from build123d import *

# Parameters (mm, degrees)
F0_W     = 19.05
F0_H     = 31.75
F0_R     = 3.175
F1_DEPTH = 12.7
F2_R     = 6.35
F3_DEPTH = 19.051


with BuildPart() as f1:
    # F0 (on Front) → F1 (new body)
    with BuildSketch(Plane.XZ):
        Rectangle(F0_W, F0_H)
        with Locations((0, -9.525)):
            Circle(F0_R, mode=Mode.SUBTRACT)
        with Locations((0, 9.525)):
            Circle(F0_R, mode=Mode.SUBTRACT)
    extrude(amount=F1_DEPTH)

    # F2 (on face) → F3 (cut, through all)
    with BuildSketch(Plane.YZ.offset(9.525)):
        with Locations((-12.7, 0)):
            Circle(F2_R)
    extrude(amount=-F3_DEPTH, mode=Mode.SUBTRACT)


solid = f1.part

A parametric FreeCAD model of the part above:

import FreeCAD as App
import Part
import Sketcher

V = App.Vector
Q = App.Units.Quantity

doc = App.newDocument("Part")
body = doc.addObject("PartDesign::Body", "Body")

# Sketch on XZ plane
sketch1 = body.newObject("Sketcher::SketchObject", "Sketch")
sketch1.AttachmentSupport = (doc.getObject("XZ_Plane"), [""])
sketch1.MapMode = "FlatFace"
sketch1.addGeometry([
    Part.LineSegment(V(-9.525, 15.875, 0), V(-9.525, -15.875, 0)),  # 0
    Part.LineSegment(V(-9.525, -15.875, 0), V(9.525, -15.875, 0)),  # 1
    Part.LineSegment(V(9.525, -15.875, 0), V(9.525, 15.875, 0)),  # 2
    Part.LineSegment(V(9.525, 15.875, 0), V(-9.525, 15.875, 0)),  # 3
    Part.Circle(V(0, -9.525, 0), V(0, 0, 1), 3.175),  # 4
    Part.Circle(V(0, 9.525, 0), V(0, 0, 1), 3.175),  # 5
], False)
sketch1.addConstraint([
    Sketcher.Constraint("Coincident", 0, 2, 1, 1),
    Sketcher.Constraint("Coincident", 1, 2, 2, 1),
    Sketcher.Constraint("Coincident", 2, 2, 3, 1),
    Sketcher.Constraint("Coincident", 3, 2, 0, 1),
    Sketcher.Constraint("Vertical", 0),
    Sketcher.Constraint("Horizontal", 1),
    Sketcher.Constraint("Vertical", 2),
    Sketcher.Constraint("Horizontal", 3),
    Sketcher.Constraint("Equal", 4, 5),
    Sketcher.Constraint("Symmetric", 4, 3, 5, 3, -1, 1),
    Sketcher.Constraint("Symmetric", 0, 2, 2, 2, -1, 1),
    Sketcher.Constraint("PointOnObject", 4, 3, -2),
    Sketcher.Constraint("Diameter", 4, Q("0.25 in")),
    Sketcher.Constraint("DistanceY", 0, 2, 5, 3, Q("1 in")),
    Sketcher.Constraint("DistanceX", 1, 1, 1, 2, Q("0.75 in")),
    Sketcher.Constraint("DistanceY", 0, 2, 0, 1, Q("1.25 in")),
])
pad1 = body.newObject("PartDesign::Pad", "Pad")
pad1.Profile = sketch1
pad1.Length = Q("0.5 in")

# Sketch on YZ plane
sketch2 = body.newObject("Sketcher::SketchObject", "Sketch001")
sketch2.AttachmentSupport = (doc.getObject("YZ_Plane"), [""])
sketch2.MapMode = "FlatFace"
sketch2.AttachmentOffset = App.Placement(V(0, 0, 0.375 * 25.4), App.Rotation())
sketch2.addGeometry(Part.Circle(V(-12.7, 0, 0), V(0, 0, 1), 6.35), False)
sketch2.addConstraint([
    Sketcher.Constraint("PointOnObject", 0, 3, -1),
    Sketcher.Constraint("Diameter", 0, Q("0.5 in")),
    Sketcher.Constraint("DistanceX", 0, 3, -1, 1, Q("0.5 in")),
])
pocket1 = body.newObject("PartDesign::Pocket", "Pocket")
pocket1.Profile = sketch2
pocket1.Type = "ThroughAll"

doc.recompute()
